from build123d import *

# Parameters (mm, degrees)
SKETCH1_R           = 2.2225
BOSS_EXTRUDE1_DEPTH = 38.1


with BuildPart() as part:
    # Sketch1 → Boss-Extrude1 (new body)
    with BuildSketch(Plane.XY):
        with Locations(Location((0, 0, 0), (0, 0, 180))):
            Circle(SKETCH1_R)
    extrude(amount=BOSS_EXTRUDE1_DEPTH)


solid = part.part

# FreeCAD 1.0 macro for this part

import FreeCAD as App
import Part
import Sketcher
Q = App.Units.Quantity

doc = App.newDocument("Part")
body = doc.addObject("PartDesign::Body", "Body")

# Sketch on XY plane
sketch1 = body.newObject("Sketcher::SketchObject", "Sketch")
sketch1.AttachmentSupport = (doc.getObject("XY_Plane"), [""])
sketch1.MapMode = "FlatFace"
sketch1.addGeometry(Part.Circle(App.Vector(0, 0, 0), App.Vector(0, 0, 1), 2.2), False)
sketch1.addConstraint(Sketcher.Constraint("Coincident", 0, 3, -1, 1))
sketch1.addConstraint(Sketcher.Constraint("Diameter", 0, Q("0.175 in")))
pad1 = body.newObject("PartDesign::Pad", "Pad")
pad1.Profile = sketch1
pad1.Length = Q("1.5 in")

doc.recompute()
